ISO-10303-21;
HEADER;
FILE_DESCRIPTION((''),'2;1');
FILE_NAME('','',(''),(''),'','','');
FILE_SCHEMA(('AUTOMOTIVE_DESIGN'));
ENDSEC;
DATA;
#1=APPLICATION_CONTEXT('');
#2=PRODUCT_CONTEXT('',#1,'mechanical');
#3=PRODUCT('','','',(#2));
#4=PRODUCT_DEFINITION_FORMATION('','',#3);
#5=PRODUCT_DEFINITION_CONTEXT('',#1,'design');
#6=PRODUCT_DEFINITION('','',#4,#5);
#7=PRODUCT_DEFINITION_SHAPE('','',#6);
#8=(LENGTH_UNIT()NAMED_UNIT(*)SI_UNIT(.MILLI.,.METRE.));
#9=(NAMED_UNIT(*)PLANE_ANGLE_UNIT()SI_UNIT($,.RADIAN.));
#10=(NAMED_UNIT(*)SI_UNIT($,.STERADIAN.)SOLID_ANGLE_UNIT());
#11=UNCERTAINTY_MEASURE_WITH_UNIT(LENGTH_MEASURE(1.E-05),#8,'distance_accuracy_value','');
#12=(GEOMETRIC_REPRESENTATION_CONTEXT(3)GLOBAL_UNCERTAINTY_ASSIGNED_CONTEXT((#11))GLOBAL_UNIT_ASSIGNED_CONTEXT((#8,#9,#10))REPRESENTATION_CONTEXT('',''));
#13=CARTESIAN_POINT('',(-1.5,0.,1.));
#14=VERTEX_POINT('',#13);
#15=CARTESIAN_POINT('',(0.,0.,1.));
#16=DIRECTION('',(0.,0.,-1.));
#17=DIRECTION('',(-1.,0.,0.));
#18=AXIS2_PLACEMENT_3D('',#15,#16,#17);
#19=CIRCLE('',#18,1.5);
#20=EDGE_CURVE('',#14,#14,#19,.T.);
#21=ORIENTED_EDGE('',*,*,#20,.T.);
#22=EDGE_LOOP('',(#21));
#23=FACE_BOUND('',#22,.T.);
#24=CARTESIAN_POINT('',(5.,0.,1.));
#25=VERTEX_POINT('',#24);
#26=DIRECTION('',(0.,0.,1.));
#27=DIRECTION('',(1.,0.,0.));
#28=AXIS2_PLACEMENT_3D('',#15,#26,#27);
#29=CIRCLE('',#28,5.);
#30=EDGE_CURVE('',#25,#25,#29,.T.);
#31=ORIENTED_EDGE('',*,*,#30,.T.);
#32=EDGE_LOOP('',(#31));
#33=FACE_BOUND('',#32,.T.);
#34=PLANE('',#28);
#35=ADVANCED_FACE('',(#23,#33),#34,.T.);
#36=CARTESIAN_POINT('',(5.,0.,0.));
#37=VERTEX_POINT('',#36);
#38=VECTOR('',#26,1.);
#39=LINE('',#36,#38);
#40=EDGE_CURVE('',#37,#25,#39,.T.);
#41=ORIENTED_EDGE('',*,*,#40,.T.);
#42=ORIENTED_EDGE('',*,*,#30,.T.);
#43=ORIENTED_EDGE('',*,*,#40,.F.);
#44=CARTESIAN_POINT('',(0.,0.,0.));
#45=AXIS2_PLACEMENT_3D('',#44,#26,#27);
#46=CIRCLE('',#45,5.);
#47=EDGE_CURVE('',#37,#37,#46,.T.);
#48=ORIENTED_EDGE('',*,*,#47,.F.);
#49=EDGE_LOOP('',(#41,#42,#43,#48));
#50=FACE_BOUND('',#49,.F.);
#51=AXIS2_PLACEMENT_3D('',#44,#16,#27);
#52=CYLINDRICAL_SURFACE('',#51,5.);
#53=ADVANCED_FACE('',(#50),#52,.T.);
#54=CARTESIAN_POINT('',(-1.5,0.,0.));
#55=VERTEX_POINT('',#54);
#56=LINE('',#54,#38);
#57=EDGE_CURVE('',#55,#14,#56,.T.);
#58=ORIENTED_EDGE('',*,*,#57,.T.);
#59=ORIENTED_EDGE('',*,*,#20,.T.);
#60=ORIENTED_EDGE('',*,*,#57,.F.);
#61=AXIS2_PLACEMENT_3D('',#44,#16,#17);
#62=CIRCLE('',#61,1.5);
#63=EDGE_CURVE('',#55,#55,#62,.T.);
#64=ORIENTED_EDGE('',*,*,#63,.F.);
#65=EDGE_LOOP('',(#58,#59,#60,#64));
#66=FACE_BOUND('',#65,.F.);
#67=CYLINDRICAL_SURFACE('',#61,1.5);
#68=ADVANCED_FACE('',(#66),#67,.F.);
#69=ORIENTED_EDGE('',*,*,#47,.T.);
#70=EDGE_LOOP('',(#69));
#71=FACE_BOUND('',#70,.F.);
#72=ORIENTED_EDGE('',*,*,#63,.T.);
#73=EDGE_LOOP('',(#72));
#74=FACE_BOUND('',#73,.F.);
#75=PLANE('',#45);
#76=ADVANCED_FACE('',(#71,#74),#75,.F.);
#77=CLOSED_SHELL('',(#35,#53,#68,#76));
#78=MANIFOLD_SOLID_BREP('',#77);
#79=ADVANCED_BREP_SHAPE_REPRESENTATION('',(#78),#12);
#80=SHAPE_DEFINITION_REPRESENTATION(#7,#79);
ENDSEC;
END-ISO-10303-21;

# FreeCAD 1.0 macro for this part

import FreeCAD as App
import Part
import Sketcher
Q = App.Units.Quantity

doc = App.newDocument("Part")
body = doc.addObject("PartDesign::Body", "Body")

# Sketch on XY plane
sketch1 = body.newObject("Sketcher::SketchObject", "Sketch")
sketch1.AttachmentSupport = (doc.getObject("XY_Plane"), [""])
sketch1.MapMode = "FlatFace"
sketch1.addGeometry(Part.Circle(App.Vector(0, 0, 0), App.Vector(0, 0, 1), 5), False)
sketch1.addConstraint([
    Sketcher.Constraint("Coincident", 0, 3, -1, 1),
    Sketcher.Constraint("Diameter", 0, Q("10 mm")),
])
pad1 = body.newObject("PartDesign::Pad", "Pad")
pad1.Profile = sketch1
pad1.Length = 1

# Sketch on XY plane
sketch2 = body.newObject("Sketcher::SketchObject", "Sketch001")
sketch2.AttachmentSupport = (doc.getObject("XY_Plane"), [""])
sketch2.MapMode = "FlatFace"
sketch2.addGeometry(Part.Circle(App.Vector(0, 0, 0), App.Vector(0, 0, 1), 1.5), False)
sketch2.addConstraint([
    Sketcher.Constraint("Coincident", 0, 3, -1, 1),
    Sketcher.Constraint("Diameter", 0, Q("3 mm")),
])
pocket1 = body.newObject("PartDesign::Pocket", "Pocket")
pocket1.Profile = sketch2
pocket1.Length = 1
pocket1.Reversed = True

doc.recompute()
